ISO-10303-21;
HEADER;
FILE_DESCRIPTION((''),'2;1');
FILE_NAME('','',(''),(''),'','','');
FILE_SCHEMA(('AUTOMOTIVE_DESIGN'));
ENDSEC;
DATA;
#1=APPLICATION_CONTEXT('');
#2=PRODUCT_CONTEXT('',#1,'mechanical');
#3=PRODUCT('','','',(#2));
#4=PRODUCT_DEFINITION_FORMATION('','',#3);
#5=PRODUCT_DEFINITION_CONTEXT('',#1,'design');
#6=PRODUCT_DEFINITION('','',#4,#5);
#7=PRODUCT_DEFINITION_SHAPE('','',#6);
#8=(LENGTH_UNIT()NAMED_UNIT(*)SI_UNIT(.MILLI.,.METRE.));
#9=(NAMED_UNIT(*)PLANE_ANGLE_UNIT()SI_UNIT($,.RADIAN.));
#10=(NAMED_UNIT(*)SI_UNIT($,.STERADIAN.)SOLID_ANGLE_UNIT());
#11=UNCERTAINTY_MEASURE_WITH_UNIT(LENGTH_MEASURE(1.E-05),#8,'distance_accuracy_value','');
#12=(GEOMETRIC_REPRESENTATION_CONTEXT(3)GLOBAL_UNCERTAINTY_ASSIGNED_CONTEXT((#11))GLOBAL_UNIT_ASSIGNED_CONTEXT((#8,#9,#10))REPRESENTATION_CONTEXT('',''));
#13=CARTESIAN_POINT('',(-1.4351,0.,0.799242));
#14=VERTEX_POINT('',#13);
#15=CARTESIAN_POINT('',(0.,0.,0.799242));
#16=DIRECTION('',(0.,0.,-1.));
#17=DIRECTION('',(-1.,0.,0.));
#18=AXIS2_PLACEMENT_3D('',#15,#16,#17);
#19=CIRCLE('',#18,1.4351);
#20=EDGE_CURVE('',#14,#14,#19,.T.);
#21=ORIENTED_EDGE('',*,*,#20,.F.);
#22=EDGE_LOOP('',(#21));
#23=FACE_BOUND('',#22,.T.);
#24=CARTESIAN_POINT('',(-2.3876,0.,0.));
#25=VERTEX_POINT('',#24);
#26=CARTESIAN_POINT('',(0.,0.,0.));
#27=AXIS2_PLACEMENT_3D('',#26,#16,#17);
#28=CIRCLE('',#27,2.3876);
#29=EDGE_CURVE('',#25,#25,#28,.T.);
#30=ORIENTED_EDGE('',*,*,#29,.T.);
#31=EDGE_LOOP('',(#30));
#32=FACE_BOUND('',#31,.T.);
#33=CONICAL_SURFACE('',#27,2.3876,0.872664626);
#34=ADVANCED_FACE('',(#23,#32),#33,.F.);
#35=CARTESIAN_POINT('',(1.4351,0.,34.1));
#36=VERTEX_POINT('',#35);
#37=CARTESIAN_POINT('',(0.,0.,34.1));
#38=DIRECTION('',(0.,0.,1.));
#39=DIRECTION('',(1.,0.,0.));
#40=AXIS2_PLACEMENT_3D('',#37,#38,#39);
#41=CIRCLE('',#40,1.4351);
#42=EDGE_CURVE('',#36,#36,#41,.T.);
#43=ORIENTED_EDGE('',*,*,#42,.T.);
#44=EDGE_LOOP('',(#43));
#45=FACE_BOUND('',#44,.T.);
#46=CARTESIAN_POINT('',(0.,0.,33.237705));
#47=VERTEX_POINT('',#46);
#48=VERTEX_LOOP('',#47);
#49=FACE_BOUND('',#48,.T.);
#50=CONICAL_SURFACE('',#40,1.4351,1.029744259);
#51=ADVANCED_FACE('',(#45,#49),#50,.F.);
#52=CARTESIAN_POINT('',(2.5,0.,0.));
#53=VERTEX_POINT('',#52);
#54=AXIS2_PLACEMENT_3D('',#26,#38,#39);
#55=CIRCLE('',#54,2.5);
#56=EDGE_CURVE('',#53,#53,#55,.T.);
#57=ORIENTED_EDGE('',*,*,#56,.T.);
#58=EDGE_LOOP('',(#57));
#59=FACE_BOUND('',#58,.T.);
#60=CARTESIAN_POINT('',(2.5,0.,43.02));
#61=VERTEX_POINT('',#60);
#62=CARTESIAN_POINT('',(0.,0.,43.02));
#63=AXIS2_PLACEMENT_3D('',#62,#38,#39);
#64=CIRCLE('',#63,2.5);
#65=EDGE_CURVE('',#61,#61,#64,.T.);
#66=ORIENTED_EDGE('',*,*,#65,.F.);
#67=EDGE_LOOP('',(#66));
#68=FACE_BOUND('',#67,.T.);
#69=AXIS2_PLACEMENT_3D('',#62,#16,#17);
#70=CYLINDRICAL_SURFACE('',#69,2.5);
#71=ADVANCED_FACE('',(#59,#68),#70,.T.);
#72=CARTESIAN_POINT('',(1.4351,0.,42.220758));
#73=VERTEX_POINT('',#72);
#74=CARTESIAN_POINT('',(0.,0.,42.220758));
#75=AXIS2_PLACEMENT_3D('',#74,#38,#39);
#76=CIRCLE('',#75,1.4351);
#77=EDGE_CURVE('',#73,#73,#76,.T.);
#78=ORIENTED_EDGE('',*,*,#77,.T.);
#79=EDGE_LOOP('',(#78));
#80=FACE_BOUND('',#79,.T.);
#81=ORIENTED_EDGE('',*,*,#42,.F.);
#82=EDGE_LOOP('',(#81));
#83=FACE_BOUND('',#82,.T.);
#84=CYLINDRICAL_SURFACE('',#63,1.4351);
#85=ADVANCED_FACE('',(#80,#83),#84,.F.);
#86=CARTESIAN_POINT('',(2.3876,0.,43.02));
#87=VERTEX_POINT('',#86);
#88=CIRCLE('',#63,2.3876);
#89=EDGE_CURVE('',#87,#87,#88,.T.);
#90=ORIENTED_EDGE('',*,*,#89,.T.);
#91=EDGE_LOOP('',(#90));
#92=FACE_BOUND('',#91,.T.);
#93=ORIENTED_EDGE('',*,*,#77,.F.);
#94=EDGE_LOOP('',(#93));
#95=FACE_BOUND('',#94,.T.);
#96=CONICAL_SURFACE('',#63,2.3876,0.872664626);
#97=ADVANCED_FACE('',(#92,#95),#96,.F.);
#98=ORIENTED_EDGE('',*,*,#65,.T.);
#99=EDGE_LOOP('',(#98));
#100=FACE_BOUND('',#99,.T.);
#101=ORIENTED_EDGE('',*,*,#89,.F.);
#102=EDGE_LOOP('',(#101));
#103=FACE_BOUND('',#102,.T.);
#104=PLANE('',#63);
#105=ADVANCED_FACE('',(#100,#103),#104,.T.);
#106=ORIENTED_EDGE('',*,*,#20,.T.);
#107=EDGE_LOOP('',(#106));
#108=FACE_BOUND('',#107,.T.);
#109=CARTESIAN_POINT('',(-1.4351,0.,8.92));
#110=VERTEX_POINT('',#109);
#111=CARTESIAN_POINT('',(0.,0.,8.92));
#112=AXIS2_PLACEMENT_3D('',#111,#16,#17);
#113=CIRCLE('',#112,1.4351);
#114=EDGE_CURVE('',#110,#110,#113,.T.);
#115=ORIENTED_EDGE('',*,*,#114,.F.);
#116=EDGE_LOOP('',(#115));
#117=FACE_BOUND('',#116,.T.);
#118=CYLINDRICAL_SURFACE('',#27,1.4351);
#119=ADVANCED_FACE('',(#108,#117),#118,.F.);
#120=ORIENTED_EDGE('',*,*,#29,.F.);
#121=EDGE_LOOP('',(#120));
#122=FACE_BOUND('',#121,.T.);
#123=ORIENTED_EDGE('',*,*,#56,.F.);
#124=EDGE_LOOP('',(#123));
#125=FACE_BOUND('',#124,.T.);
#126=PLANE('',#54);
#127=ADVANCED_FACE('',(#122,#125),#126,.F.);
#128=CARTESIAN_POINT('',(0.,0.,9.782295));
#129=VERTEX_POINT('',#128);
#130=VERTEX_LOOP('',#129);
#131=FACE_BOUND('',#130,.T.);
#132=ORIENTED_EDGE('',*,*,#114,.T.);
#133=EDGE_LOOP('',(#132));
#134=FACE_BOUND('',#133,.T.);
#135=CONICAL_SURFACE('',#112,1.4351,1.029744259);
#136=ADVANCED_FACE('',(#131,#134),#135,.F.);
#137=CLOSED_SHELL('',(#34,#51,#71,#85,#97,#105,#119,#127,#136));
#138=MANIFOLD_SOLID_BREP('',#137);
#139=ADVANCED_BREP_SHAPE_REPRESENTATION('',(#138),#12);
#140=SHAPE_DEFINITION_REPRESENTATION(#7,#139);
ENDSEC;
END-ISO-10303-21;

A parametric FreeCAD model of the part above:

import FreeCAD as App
import Part
import Sketcher
Q = App.Units.Quantity

doc = App.newDocument("Part")
body = doc.addObject("PartDesign::Body", "Body")

# Sketch on XY plane
sketch1 = doc.addObject("Sketcher::SketchObject", "Sketch")
body.addObject(sketch1)
sketch1.AttachmentSupport = (doc.XY_Plane, [""])
sketch1.MapMode = "FlatFace"
sketch1.addGeometry(Part.Circle(App.Vector(0, 0, 0), App.Vector(0, 0, 1), 2.5), False)
sketch1.addConstraint([
    Sketcher.Constraint("Coincident", 0, 3, -1, 1),
    Sketcher.Constraint("Diameter", 0, Q("5 mm")),
])
pad1 = doc.addObject("PartDesign::Pad", "Pad")
body.addObject(pad1)
pad1.Profile = sketch1
pad1.Length = 43.02

# Sketch on YZ plane
sketch2 = doc.addObject("Sketcher::SketchObject", "Sketch001")
body.addObject(sketch2)
sketch2.AttachmentSupport = (doc.YZ_Plane, [""])
sketch2.MapMode = "FlatFace"
sketch2.addGeometry([
    Part.LineSegment(App.Vector(0, 33.2, 0), App.Vector(0, 43, 0)),  # 0
    Part.LineSegment(App.Vector(0, 43, 0), App.Vector(-2.4, 43, 0)),  # 1
    Part.LineSegment(App.Vector(-2.4, 43, 0), App.Vector(-1.4, 42.2, 0)),  # 2
    Part.LineSegment(App.Vector(-1.4, 42.2, 0), App.Vector(-1.4, 34.1, 0)),  # 3
    Part.LineSegment(App.Vector(-1.4, 34.1, 0), App.Vector(0, 33.2, 0)),  # 4
], False)
sketch2.addConstraint([
    Sketcher.Constraint("Coincident", 0, 2, 1, 1),
    Sketcher.Constraint("Coincident", 1, 2, 2, 1),
    Sketcher.Constraint("Coincident", 2, 2, 3, 1),
    Sketcher.Constraint("Coincident", 3, 2, 4, 1),
    Sketcher.Constraint("Coincident", 4, 2, 0, 1),
    Sketcher.Constraint("Vertical", 0),
    Sketcher.Constraint("Horizontal", 1),
    Sketcher.Constraint("Vertical", 3),
    Sketcher.Constraint("PointOnObject", 0, 2, -2),
    Sketcher.Constraint("Angle", 2, Q("-40 deg")),
    Sketcher.Constraint("Angle", 4, Q("-31 deg")),
    Sketcher.Constraint("DistanceY", -1, 1, 3, 2, Q("34.1 mm")),
    Sketcher.Constraint("DistanceY", -1, 1, 0, 2, Q("43.02 mm")),
    Sketcher.Constraint("DistanceX", 1, 2, 1, 1, Q("2.3876 mm")),
    Sketcher.Constraint("Distance", 2, Q("1.2434 mm")),
])
groove = doc.addObject("PartDesign::Groove", "Groove")
body.addObject(groove)
groove.Profile = sketch2
groove.ReferenceAxis = (sketch2, ["V_Axis"])
groove.Angle = 360
doc.recompute()

datumplane = doc.addObject("PartDesign::Plane", "DatumPlane")
body.addObject(datumplane)
datumplane.AttachmentSupport = (doc.XY_Plane, [""])
datumplane.MapMode = "FlatFace"
datumplane.AttachmentOffset = App.Placement(App.Vector(0, 0, 21.51), App.Rotation())
mirrored = doc.addObject("PartDesign::Mirrored", "Mirrored")
body.addObject(mirrored)
mirrored.Originals = [groove]
mirrored.MirrorPlane = (datumplane, [""])
body.Tip = mirrored

doc.recompute()
